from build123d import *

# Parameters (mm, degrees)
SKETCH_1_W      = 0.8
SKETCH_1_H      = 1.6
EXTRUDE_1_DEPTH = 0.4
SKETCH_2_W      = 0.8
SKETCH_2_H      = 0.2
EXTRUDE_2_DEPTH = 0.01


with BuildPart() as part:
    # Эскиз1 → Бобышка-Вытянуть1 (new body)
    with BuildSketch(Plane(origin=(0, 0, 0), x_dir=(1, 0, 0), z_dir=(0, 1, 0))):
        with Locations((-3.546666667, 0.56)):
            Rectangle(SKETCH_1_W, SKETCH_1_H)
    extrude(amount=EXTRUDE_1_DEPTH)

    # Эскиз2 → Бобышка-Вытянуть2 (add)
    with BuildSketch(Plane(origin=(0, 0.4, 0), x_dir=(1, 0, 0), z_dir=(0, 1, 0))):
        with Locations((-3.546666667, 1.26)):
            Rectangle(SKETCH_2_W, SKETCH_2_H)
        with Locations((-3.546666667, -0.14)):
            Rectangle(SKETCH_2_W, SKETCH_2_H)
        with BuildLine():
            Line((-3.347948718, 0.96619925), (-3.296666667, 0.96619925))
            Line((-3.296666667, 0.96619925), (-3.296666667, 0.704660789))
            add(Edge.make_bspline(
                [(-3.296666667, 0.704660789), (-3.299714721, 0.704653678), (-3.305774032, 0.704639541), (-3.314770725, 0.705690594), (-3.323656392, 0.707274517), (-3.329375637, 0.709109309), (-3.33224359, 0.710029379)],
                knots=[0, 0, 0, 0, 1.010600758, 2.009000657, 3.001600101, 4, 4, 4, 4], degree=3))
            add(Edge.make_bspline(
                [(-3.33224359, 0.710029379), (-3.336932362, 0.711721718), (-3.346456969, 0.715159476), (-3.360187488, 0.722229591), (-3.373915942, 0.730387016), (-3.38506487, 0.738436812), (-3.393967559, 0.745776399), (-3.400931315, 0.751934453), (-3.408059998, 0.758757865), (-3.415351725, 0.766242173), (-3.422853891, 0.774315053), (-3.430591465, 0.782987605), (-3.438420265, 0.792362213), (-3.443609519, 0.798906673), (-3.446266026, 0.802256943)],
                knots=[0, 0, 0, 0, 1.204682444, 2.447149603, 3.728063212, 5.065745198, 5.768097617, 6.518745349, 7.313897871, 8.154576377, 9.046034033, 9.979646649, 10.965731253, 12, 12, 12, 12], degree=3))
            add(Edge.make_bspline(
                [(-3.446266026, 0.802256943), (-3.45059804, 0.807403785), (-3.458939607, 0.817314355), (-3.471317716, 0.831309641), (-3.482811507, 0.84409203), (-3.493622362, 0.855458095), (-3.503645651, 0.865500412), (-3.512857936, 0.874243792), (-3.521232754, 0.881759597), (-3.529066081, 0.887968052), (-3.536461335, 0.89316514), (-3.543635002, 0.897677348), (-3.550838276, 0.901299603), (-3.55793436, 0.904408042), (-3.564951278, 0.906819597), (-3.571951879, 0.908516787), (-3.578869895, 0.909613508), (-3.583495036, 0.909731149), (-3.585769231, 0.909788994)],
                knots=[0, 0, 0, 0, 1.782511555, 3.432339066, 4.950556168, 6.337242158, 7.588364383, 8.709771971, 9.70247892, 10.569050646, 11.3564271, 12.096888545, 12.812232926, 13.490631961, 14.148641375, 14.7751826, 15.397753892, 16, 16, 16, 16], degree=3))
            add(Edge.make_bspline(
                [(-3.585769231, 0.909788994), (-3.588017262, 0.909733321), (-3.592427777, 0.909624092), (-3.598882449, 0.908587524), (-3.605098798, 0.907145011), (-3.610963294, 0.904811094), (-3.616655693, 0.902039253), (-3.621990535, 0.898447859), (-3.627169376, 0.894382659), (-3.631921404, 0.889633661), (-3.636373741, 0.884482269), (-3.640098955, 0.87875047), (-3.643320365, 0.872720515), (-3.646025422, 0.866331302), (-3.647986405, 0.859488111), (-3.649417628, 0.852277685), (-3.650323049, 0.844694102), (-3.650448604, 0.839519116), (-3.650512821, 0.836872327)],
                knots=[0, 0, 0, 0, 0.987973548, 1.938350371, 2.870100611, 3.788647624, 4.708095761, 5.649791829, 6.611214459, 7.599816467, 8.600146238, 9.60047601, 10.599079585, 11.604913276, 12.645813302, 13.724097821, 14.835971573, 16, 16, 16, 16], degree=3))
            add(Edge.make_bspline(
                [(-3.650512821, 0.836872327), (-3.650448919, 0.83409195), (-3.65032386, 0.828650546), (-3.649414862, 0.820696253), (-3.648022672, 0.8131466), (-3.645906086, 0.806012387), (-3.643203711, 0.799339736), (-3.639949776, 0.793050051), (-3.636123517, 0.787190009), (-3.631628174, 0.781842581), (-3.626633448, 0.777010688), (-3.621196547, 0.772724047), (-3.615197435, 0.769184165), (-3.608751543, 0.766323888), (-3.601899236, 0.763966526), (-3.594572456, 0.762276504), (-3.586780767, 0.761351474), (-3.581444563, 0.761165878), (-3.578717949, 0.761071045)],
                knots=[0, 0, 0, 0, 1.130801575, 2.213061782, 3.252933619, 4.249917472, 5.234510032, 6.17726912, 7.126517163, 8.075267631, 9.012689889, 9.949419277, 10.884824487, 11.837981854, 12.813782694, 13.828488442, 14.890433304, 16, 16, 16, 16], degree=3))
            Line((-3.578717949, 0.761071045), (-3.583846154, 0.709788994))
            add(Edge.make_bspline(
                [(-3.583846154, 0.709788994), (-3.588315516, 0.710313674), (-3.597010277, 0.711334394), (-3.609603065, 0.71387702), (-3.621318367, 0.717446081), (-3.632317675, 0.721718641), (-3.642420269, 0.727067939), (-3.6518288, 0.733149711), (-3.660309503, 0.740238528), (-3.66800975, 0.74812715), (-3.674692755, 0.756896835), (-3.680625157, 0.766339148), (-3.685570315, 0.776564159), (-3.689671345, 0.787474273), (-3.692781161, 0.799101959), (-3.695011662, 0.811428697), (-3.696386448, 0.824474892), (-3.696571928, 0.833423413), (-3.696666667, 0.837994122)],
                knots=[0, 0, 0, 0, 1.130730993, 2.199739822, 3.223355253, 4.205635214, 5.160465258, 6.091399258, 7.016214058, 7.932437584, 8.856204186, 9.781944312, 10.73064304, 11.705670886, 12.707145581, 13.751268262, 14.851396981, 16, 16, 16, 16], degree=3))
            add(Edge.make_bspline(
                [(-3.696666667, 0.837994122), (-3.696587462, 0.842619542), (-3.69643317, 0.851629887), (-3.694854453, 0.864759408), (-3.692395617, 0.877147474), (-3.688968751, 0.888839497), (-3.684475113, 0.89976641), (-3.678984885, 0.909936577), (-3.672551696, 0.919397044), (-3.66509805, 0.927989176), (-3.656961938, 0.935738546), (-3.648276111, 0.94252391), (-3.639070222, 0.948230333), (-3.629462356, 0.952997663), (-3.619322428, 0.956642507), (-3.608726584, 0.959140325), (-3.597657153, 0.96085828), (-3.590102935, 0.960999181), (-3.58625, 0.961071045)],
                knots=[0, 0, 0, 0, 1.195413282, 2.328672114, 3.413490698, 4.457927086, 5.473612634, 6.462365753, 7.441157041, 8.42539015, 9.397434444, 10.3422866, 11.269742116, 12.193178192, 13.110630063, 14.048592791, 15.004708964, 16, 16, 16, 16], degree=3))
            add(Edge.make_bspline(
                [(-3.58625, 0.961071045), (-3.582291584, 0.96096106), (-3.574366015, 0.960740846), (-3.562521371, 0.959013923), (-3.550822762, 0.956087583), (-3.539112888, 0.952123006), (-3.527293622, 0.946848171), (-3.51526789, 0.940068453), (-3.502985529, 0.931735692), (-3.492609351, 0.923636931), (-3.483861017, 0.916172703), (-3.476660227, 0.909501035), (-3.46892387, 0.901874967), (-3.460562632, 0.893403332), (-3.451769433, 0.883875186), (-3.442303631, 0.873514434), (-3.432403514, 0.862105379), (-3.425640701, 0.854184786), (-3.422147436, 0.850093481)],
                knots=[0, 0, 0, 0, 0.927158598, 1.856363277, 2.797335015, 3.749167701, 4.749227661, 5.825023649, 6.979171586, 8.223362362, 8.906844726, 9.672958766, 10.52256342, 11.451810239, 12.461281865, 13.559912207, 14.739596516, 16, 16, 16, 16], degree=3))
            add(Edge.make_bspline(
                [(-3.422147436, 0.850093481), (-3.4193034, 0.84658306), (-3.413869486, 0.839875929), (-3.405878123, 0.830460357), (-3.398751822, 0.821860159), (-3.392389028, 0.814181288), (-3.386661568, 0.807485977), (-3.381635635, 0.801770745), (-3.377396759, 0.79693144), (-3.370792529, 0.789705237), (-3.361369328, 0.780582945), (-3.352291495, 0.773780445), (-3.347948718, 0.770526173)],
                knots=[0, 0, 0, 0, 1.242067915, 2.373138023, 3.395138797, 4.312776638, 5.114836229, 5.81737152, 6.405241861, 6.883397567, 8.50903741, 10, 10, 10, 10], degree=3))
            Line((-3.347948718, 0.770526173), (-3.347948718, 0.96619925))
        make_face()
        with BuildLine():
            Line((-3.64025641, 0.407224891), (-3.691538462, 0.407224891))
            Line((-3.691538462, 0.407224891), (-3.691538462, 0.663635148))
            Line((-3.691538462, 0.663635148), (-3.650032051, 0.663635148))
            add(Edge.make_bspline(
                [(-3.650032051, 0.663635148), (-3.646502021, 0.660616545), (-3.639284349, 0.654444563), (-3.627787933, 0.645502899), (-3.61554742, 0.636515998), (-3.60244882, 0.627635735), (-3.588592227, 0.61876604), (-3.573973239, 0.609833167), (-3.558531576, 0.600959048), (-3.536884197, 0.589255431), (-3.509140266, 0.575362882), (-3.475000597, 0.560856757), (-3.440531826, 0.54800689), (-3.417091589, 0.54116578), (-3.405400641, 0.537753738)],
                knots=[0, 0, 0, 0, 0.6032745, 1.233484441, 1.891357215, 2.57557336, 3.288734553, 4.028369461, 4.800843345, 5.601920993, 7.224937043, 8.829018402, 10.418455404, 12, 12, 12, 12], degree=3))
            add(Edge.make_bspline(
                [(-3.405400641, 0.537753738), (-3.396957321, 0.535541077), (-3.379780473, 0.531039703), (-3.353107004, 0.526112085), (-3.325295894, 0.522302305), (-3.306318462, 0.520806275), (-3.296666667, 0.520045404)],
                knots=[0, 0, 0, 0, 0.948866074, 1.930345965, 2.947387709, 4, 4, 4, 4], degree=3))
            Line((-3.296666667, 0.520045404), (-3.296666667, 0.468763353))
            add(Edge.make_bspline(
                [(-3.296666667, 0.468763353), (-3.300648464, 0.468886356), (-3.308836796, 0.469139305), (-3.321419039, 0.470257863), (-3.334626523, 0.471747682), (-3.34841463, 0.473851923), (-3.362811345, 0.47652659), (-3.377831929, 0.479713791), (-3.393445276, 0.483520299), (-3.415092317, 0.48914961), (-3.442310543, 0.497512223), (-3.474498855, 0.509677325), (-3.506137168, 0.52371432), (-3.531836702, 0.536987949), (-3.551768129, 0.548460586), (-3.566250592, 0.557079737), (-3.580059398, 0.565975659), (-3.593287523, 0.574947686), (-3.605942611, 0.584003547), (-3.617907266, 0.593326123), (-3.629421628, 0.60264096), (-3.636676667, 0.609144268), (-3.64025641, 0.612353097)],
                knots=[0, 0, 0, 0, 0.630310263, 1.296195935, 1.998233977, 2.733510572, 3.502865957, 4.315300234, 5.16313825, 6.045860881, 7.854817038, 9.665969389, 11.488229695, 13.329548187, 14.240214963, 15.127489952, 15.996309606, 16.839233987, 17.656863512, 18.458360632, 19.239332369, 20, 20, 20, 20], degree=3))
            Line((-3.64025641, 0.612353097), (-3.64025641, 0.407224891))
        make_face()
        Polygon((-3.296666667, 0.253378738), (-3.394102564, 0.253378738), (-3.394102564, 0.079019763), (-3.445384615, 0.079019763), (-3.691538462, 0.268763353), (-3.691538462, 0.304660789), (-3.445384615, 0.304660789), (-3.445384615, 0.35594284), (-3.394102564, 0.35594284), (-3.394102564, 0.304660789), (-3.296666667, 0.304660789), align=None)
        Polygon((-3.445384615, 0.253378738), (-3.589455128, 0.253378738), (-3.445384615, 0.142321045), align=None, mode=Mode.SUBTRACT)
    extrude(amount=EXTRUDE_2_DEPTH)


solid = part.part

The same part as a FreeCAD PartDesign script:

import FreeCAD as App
import Part
import Sketcher
from FreeCAD import Vector
Q = App.Units.Quantity


def add_polygon(sketch, points):
    """Adds a closed chain of lines whose ends are joined by coincident constraints."""
    first, n = sketch.GeometryCount, len(points)
    for a, b in zip(points, points[1:] + points[:1]):
        sketch.addGeometry(Part.LineSegment(App.Vector(*a, 0), App.Vector(*b, 0)), False)
    for i in range(n):
        sketch.addConstraint(Sketcher.Constraint("Coincident", first + i, 2, first + (i + 1) % n, 1))

doc = App.newDocument("Part")
body = doc.addObject("PartDesign::Body", "Body")

sketch1 = body.newObject("Sketcher::SketchObject", "Sketch")
sketch1.AttachmentSupport = (doc.getObject("XZ_Plane"), [""])
sketch1.MapMode = "FlatFace"
add_polygon(sketch1, [(-3.946667, -1.36), (-3.946667, 0.24), (-3.146667, 0.24), (-3.146667, -1.36)])
sketch1.addConstraint([
    Sketcher.Constraint("Vertical", 0),
    Sketcher.Constraint("Horizontal", 1),
    Sketcher.Constraint("Vertical", 2),
    Sketcher.Constraint("Horizontal", 3),
    Sketcher.Constraint("DistanceX", 1, 1, 1, 2, Q("0.8 mm")),
    Sketcher.Constraint("DistanceY", 0, 1, 0, 2, Q("1.6 mm")),
    Sketcher.Constraint("DistanceY", -1, 1, 0, 2, Q("0.24 mm")),
    Sketcher.Constraint("DistanceX", 0, 2, -1, 1, Q("3.946667 mm")),
])
pad1 = body.newObject("PartDesign::Pad", "Pad")
pad1.Profile = sketch1
pad1.Length = 0.4
pad1.Reversed = True

sketch2 = body.newObject("Sketcher::SketchObject", "Sketch001")
sketch2.AttachmentSupport = (doc.getObject("XZ_Plane"), [""])
sketch2.MapMode = "FlatFace"
sketch2.AttachmentOffset = App.Placement(Vector(0, 0, -0.4), App.Rotation())
add_polygon(sketch2, [(-3.946667, -1.36), (-3.946667, -1.16), (-3.146667, -1.16), (-3.146667, -1.36)])
add_polygon(sketch2, [(-3.946667, 0.04), (-3.946667, 0.24), (-3.146667, 0.24), (-3.146667, 0.04)])
sketch2.addGeometry(Part.LineSegment(Vector(-3.296667, -0.966199, 0), Vector(-3.347949, -0.966199, 0)), False)
sketch2.addGeometry(Part.LineSegment(Vector(-3.347949, -0.966199, 0), Vector(-3.347949, -0.770526, 0)), False)
sketch2.addGeometry(Part.BSplineCurve([Vector(-3.422147, -0.850093, 0), Vector(-3.419303, -0.846583, 0), Vector(-3.413869, -0.839876, 0), Vector(-3.405878, -0.83046, 0), Vector(-3.398752, -0.82186, 0), Vector(-3.392389, -0.814181, 0), Vector(-3.386662, -0.807486, 0), Vector(-3.381636, -0.801771, 0), Vector(-3.377397, -0.796931, 0), Vector(-3.370793, -0.789705, 0), Vector(-3.361369, -0.780583, 0), Vector(-3.352291, -0.77378, 0), Vector(-3.347949, -0.770526, 0)], [4, 1, 1, 1, 1, 1, 1, 1, 1, 1, 4], [0, 1.242067915, 2.373138023, 3.395138797, 4.312776638, 5.114836229, 5.81737152, 6.405241861, 6.883397567, 8.50903741, 10], False, 3, [1, 1, 1, 1, 1, 1, 1, 1, 1, 1, 1, 1, 1], False), False)
sketch2.addGeometry(Part.BSplineCurve([Vector(-3.58625, -0.961071, 0), Vector(-3.582292, -0.960961, 0), Vector(-3.574366, -0.960741, 0), Vector(-3.562521, -0.959014, 0), Vector(-3.550823, -0.956088, 0), Vector(-3.539113, -0.952123, 0), Vector(-3.527294, -0.946848, 0), Vector(-3.515268, -0.940068, 0), Vector(-3.502986, -0.931736, 0), Vector(-3.492609, -0.923637, 0), Vector(-3.483861, -0.916173, 0), Vector(-3.47666, -0.909501, 0), Vector(-3.468924, -0.901875, 0), Vector(-3.460563, -0.893403, 0), Vector(-3.451769, -0.883875, 0), Vector(-3.442304, -0.873514, 0), Vector(-3.432404, -0.862105, 0), Vector(-3.425641, -0.854185, 0), Vector(-3.422147, -0.850093, 0)], [4, 1, 1, 1, 1, 1, 1, 1, 1, 1, 1, 1, 1, 1, 1, 1, 4], [0, 0.927158598, 1.856363277, 2.797335015, 3.749167701, 4.749227661, 5.825023649, 6.979171586, 8.223362362, 8.906844726, 9.672958766, 10.52256342, 11.451810239, 12.461281865, 13.559912207, 14.739596516, 16], False, 3, [1, 1, 1, 1, 1, 1, 1, 1, 1, 1, 1, 1, 1, 1, 1, 1, 1, 1, 1], False), False)
sketch2.addGeometry(Part.BSplineCurve([Vector(-3.696667, -0.837994, 0), Vector(-3.696587, -0.84262, 0), Vector(-3.696433, -0.85163, 0), Vector(-3.694854, -0.864759, 0), Vector(-3.692396, -0.877147, 0), Vector(-3.688969, -0.888839, 0), Vector(-3.684475, -0.899766, 0), Vector(-3.678985, -0.909937, 0), Vector(-3.672552, -0.919397, 0), Vector(-3.665098, -0.927989, 0), Vector(-3.656962, -0.935739, 0), Vector(-3.648276, -0.942524, 0), Vector(-3.63907, -0.94823, 0), Vector(-3.629462, -0.952998, 0), Vector(-3.619322, -0.956643, 0), Vector(-3.608727, -0.95914, 0), Vector(-3.597657, -0.960858, 0), Vector(-3.590103, -0.960999, 0), Vector(-3.58625, -0.961071, 0)], [4, 1, 1, 1, 1, 1, 1, 1, 1, 1, 1, 1, 1, 1, 1, 1, 4], [0, 1.195413282, 2.328672114, 3.413490698, 4.457927086, 5.473612634, 6.462365753, 7.441157041, 8.42539015, 9.397434444, 10.3422866, 11.269742116, 12.193178192, 13.110630063, 14.048592791, 15.004708964, 16], False, 3, [1, 1, 1, 1, 1, 1, 1, 1, 1, 1, 1, 1, 1, 1, 1, 1, 1, 1, 1], False), False)
sketch2.addGeometry(Part.BSplineCurve([Vector(-3.583846, -0.709789, 0), Vector(-3.588316, -0.710314, 0), Vector(-3.59701, -0.711334, 0), Vector(-3.609603, -0.713877, 0), Vector(-3.621318, -0.717446, 0), Vector(-3.632318, -0.721719, 0), Vector(-3.64242, -0.727068, 0), Vector(-3.651829, -0.73315, 0), Vector(-3.66031, -0.740239, 0), Vector(-3.66801, -0.748127, 0), Vector(-3.674693, -0.756897, 0), Vector(-3.680625, -0.766339, 0), Vector(-3.68557, -0.776564, 0), Vector(-3.689671, -0.787474, 0), Vector(-3.692781, -0.799102, 0), Vector(-3.695012, -0.811429, 0), Vector(-3.696386, -0.824475, 0), Vector(-3.696572, -0.833423, 0), Vector(-3.696667, -0.837994, 0)], [4, 1, 1, 1, 1, 1, 1, 1, 1, 1, 1, 1, 1, 1, 1, 1, 4], [0, 1.130730993, 2.199739822, 3.223355253, 4.205635214, 5.160465258, 6.091399258, 7.016214058, 7.932437584, 8.856204186, 9.781944312, 10.73064304, 11.705670886, 12.707145581, 13.751268262, 14.851396981, 16], False, 3, [1, 1, 1, 1, 1, 1, 1, 1, 1, 1, 1, 1, 1, 1, 1, 1, 1, 1, 1], False), False)
sketch2.addGeometry(Part.LineSegment(Vector(-3.583846, -0.709789, 0), Vector(-3.578718, -0.761071, 0)), False)
sketch2.addGeometry(Part.BSplineCurve([Vector(-3.650513, -0.836872, 0), Vector(-3.650449, -0.834092, 0), Vector(-3.650324, -0.828651, 0), Vector(-3.649415, -0.820696, 0), Vector(-3.648023, -0.813147, 0), Vector(-3.645906, -0.806012, 0), Vector(-3.643204, -0.79934, 0), Vector(-3.63995, -0.79305, 0), Vector(-3.636124, -0.78719, 0), Vector(-3.631628, -0.781843, 0), Vector(-3.626633, -0.777011, 0), Vector(-3.621197, -0.772724, 0), Vector(-3.615197, -0.769184, 0), Vector(-3.608752, -0.766324, 0), Vector(-3.601899, -0.763967, 0), Vector(-3.594572, -0.762277, 0), Vector(-3.586781, -0.761351, 0), Vector(-3.581445, -0.761166, 0), Vector(-3.578718, -0.761071, 0)], [4, 1, 1, 1, 1, 1, 1, 1, 1, 1, 1, 1, 1, 1, 1, 1, 4], [0, 1.130801575, 2.213061782, 3.252933619, 4.249917472, 5.234510032, 6.17726912, 7.126517163, 8.075267631, 9.012689889, 9.949419277, 10.884824487, 11.837981854, 12.813782694, 13.828488442, 14.890433304, 16], False, 3, [1, 1, 1, 1, 1, 1, 1, 1, 1, 1, 1, 1, 1, 1, 1, 1, 1, 1, 1], False), False)
sketch2.addGeometry(Part.BSplineCurve([Vector(-3.585769, -0.909789, 0), Vector(-3.588017, -0.909733, 0), Vector(-3.592428, -0.909624, 0), Vector(-3.598882, -0.908588, 0), Vector(-3.605099, -0.907145, 0), Vector(-3.610963, -0.904811, 0), Vector(-3.616656, -0.902039, 0), Vector(-3.621991, -0.898448, 0), Vector(-3.627169, -0.894383, 0), Vector(-3.631921, -0.889634, 0), Vector(-3.636374, -0.884482, 0), Vector(-3.640099, -0.87875, 0), Vector(-3.64332, -0.872721, 0), Vector(-3.646025, -0.866331, 0), Vector(-3.647986, -0.859488, 0), Vector(-3.649418, -0.852278, 0), Vector(-3.650323, -0.844694, 0), Vector(-3.650449, -0.839519, 0), Vector(-3.650513, -0.836872, 0)], [4, 1, 1, 1, 1, 1, 1, 1, 1, 1, 1, 1, 1, 1, 1, 1, 4], [0, 0.987973548, 1.938350371, 2.870100611, 3.788647624, 4.708095761, 5.649791829, 6.611214459, 7.599816467, 8.600146238, 9.60047601, 10.599079585, 11.604913276, 12.645813302, 13.724097821, 14.835971573, 16], False, 3, [1, 1, 1, 1, 1, 1, 1, 1, 1, 1, 1, 1, 1, 1, 1, 1, 1, 1, 1], False), False)
sketch2.addGeometry(Part.BSplineCurve([Vector(-3.446266, -0.802257, 0), Vector(-3.450598, -0.807404, 0), Vector(-3.45894, -0.817314, 0), Vector(-3.471318, -0.83131, 0), Vector(-3.482812, -0.844092, 0), Vector(-3.493622, -0.855458, 0), Vector(-3.503646, -0.8655, 0), Vector(-3.512858, -0.874244, 0), Vector(-3.521233, -0.88176, 0), Vector(-3.529066, -0.887968, 0), Vector(-3.536461, -0.893165, 0), Vector(-3.543635, -0.897677, 0), Vector(-3.550838, -0.9013, 0), Vector(-3.557934, -0.904408, 0), Vector(-3.564951, -0.90682, 0), Vector(-3.571952, -0.908517, 0), Vector(-3.57887, -0.909614, 0), Vector(-3.583495, -0.909731, 0), Vector(-3.585769, -0.909789, 0)], [4, 1, 1, 1, 1, 1, 1, 1, 1, 1, 1, 1, 1, 1, 1, 1, 4], [0, 1.782511555, 3.432339066, 4.950556168, 6.337242158, 7.588364383, 8.709771971, 9.70247892, 10.569050646, 11.3564271, 12.096888545, 12.812232926, 13.490631961, 14.148641375, 14.7751826, 15.397753892, 16], False, 3, [1, 1, 1, 1, 1, 1, 1, 1, 1, 1, 1, 1, 1, 1, 1, 1, 1, 1, 1], False), False)
sketch2.addGeometry(Part.BSplineCurve([Vector(-3.332244, -0.710029, 0), Vector(-3.336932, -0.711722, 0), Vector(-3.346457, -0.715159, 0), Vector(-3.360187, -0.72223, 0), Vector(-3.373916, -0.730387, 0), Vector(-3.385065, -0.738437, 0), Vector(-3.393968, -0.745776, 0), Vector(-3.400931, -0.751934, 0), Vector(-3.40806, -0.758758, 0), Vector(-3.415352, -0.766242, 0), Vector(-3.422854, -0.774315, 0), Vector(-3.430591, -0.782988, 0), Vector(-3.43842, -0.792362, 0), Vector(-3.44361, -0.798907, 0), Vector(-3.446266, -0.802257, 0)], [4, 1, 1, 1, 1, 1, 1, 1, 1, 1, 1, 1, 4], [0, 1.204682444, 2.447149603, 3.728063212, 5.065745198, 5.768097617, 6.518745349, 7.313897871, 8.154576377, 9.046034033, 9.979646649, 10.965731253, 12], False, 3, [1, 1, 1, 1, 1, 1, 1, 1, 1, 1, 1, 1, 1, 1, 1], False), False)
sketch2.addGeometry(Part.BSplineCurve([Vector(-3.296667, -0.704661, 0), Vector(-3.299715, -0.704654, 0), Vector(-3.305774, -0.70464, 0), Vector(-3.314771, -0.705691, 0), Vector(-3.323656, -0.707275, 0), Vector(-3.329376, -0.709109, 0), Vector(-3.332244, -0.710029, 0)], [4, 1, 1, 1, 4], [0, 1.010600758, 2.009000657, 3.001600101, 4], False, 3, [1, 1, 1, 1, 1, 1, 1], False), False)
sketch2.addGeometry(Part.LineSegment(Vector(-3.296667, -0.704661, 0), Vector(-3.296667, -0.966199, 0)), False)
sketch2.addGeometry(Part.LineSegment(Vector(-3.691538, -0.407225, 0), Vector(-3.640256, -0.407225, 0)), False)
sketch2.addGeometry(Part.LineSegment(Vector(-3.640256, -0.407225, 0), Vector(-3.640256, -0.612353, 0)), False)
sketch2.addGeometry(Part.BSplineCurve([Vector(-3.296667, -0.468763, 0), Vector(-3.300648, -0.468886, 0), Vector(-3.308837, -0.469139, 0), Vector(-3.321419, -0.470258, 0), Vector(-3.334627, -0.471748, 0), Vector(-3.348415, -0.473852, 0), Vector(-3.362811, -0.476527, 0), Vector(-3.377832, -0.479714, 0), Vector(-3.393445, -0.48352, 0), Vector(-3.415092, -0.48915, 0), Vector(-3.442311, -0.497512, 0), Vector(-3.474499, -0.509677, 0), Vector(-3.506137, -0.523714, 0), Vector(-3.531837, -0.536988, 0), Vector(-3.551768, -0.548461, 0), Vector(-3.566251, -0.55708, 0), Vector(-3.580059, -0.565976, 0), Vector(-3.593288, -0.574948, 0), Vector(-3.605943, -0.584004, 0), Vector(-3.617907, -0.593326, 0), Vector(-3.629422, -0.602641, 0), Vector(-3.636677, -0.609144, 0), Vector(-3.640256, -0.612353, 0)], [4, 1, 1, 1, 1, 1, 1, 1, 1, 1, 1, 1, 1, 1, 1, 1, 1, 1, 1, 1, 4], [0, 0.630310263, 1.296195935, 1.998233977, 2.733510572, 3.502865957, 4.315300234, 5.16313825, 6.045860881, 7.854817038, 9.665969389, 11.488229695, 13.329548187, 14.240214963, 15.127489952, 15.996309606, 16.839233987, 17.656863512, 18.458360632, 19.239332369, 20], False, 3, [1, 1, 1, 1, 1, 1, 1, 1, 1, 1, 1, 1, 1, 1, 1, 1, 1, 1, 1, 1, 1, 1, 1], False), False)
sketch2.addGeometry(Part.LineSegment(Vector(-3.296667, -0.468763, 0), Vector(-3.296667, -0.520045, 0)), False)
sketch2.addGeometry(Part.BSplineCurve([Vector(-3.405401, -0.537754, 0), Vector(-3.396957, -0.535541, 0), Vector(-3.37978, -0.53104, 0), Vector(-3.353107, -0.526112, 0), Vector(-3.325296, -0.522302, 0), Vector(-3.306318, -0.520806, 0), Vector(-3.296667, -0.520045, 0)], [4, 1, 1, 1, 4], [0, 0.948866074, 1.930345965, 2.947387709, 4], False, 3, [1, 1, 1, 1, 1, 1, 1], False), False)
sketch2.addGeometry(Part.BSplineCurve([Vector(-3.650032, -0.663635, 0), Vector(-3.646502, -0.660617, 0), Vector(-3.639284, -0.654445, 0), Vector(-3.627788, -0.645503, 0), Vector(-3.615547, -0.636516, 0), Vector(-3.602449, -0.627636, 0), Vector(-3.588592, -0.618766, 0), Vector(-3.573973, -0.609833, 0), Vector(-3.558532, -0.600959, 0), Vector(-3.536884, -0.589255, 0), Vector(-3.50914, -0.575363, 0), Vector(-3.475001, -0.560857, 0), Vector(-3.440532, -0.548007, 0), Vector(-3.417092, -0.541166, 0), Vector(-3.405401, -0.537754, 0)], [4, 1, 1, 1, 1, 1, 1, 1, 1, 1, 1, 1, 4], [0, 0.6032745, 1.233484441, 1.891357215, 2.57557336, 3.288734553, 4.028369461, 4.800843345, 5.601920993, 7.224937043, 8.829018402, 10.418455404, 12], False, 3, [1, 1, 1, 1, 1, 1, 1, 1, 1, 1, 1, 1, 1, 1, 1], False), False)
sketch2.addGeometry(Part.LineSegment(Vector(-3.650032, -0.663635, 0), Vector(-3.691538, -0.663635, 0)), False)
sketch2.addGeometry(Part.LineSegment(Vector(-3.691538, -0.663635, 0), Vector(-3.691538, -0.407225, 0)), False)
add_polygon(sketch2, [(-3.394103, -0.253379), (-3.296667, -0.253379), (-3.296667, -0.304661), (-3.394103, -0.304661), (-3.394103, -0.355943), (-3.445385, -0.355943), (-3.445385, -0.304661), (-3.691538, -0.304661), (-3.691538, -0.268763), (-3.445385, -0.07902), (-3.394103, -0.07902)])
add_polygon(sketch2, [(-3.445385, -0.253379), (-3.445385, -0.142321), (-3.589455, -0.253379)])
sketch2.addConstraint([
    Sketcher.Constraint("Block", 10),
    Sketcher.Constraint("Block", 11),
    Sketcher.Constraint("Block", 12),
    Sketcher.Constraint("Block", 13),
    Sketcher.Constraint("Block", 15),
    Sketcher.Constraint("Block", 16),
    Sketcher.Constraint("Block", 17),
    Sketcher.Constraint("Block", 18),
    Sketcher.Constraint("Block", 19),
    Sketcher.Constraint("Block", 23),
    Sketcher.Constraint("Block", 25),
    Sketcher.Constraint("Block", 26),
    Sketcher.Constraint("Coincident", 8, 2, 9, 1),
    Sketcher.Constraint("Coincident", 9, 2, 10, 2),
    Sketcher.Constraint("Coincident", 13, 1, 14, 1),
    Sketcher.Constraint("Coincident", 14, 2, 15, 2),
    Sketcher.Constraint("Coincident", 19, 1, 20, 1),
    Sketcher.Constraint("Coincident", 20, 2, 8, 1),
    Sketcher.Constraint("Coincident", 21, 2, 22, 1),
    Sketcher.Constraint("Coincident", 22, 2, 23, 2),
    Sketcher.Constraint("Coincident", 23, 1, 24, 1),
    Sketcher.Constraint("Coincident", 24, 2, 25, 2),
    Sketcher.Constraint("Coincident", 26, 1, 27, 1),
    Sketcher.Constraint("Coincident", 27, 2, 28, 1),
    Sketcher.Constraint("Coincident", 28, 2, 21, 1),
    Sketcher.Constraint("Vertical", 0),
    Sketcher.Constraint("Horizontal", 1),
    Sketcher.Constraint("Vertical", 2),
    Sketcher.Constraint("Horizontal", 3),
    Sketcher.Constraint("Vertical", 4),
    Sketcher.Constraint("Horizontal", 5),
    Sketcher.Constraint("Vertical", 6),
    Sketcher.Constraint("Horizontal", 7),
    Sketcher.Constraint("Horizontal", 8),
    Sketcher.Constraint("Vertical", 9),
    Sketcher.Constraint("Vertical", 20),
    Sketcher.Constraint("Horizontal", 21),
    Sketcher.Constraint("Vertical", 22),
    Sketcher.Constraint("Horizontal", 27),
    Sketcher.Constraint("Vertical", 28),
    Sketcher.Constraint("Horizontal", 29),
    Sketcher.Constraint("Vertical", 30),
    Sketcher.Constraint("Horizontal", 31),
    Sketcher.Constraint("Vertical", 32),
    Sketcher.Constraint("Horizontal", 33),
    Sketcher.Constraint("Vertical", 34),
    Sketcher.Constraint("Horizontal", 35),
    Sketcher.Constraint("Vertical", 36),
    Sketcher.Constraint("Horizontal", 38),
    Sketcher.Constraint("Vertical", 39),
    Sketcher.Constraint("Vertical", 40),
    Sketcher.Constraint("Horizontal", 42),
    Sketcher.Constraint("DistanceX", 1, 1, 1, 2, Q("0.8 mm")),
    Sketcher.Constraint("DistanceX", 5, 1, 5, 2, Q("0.8 mm")),
    Sketcher.Constraint("DistanceY", 0, 1, 0, 2, Q("0.2 mm")),
    Sketcher.Constraint("DistanceY", 4, 1, 4, 2, Q("0.2 mm")),
    Sketcher.Constraint("DistanceY", 0, 2, 4, 2, Q("1.4 mm")),
    Sketcher.Constraint("DistanceX", 4, 2, 1, 2, Q("0.8 mm")),
    Sketcher.Constraint("DistanceY", 0, 2, -1, 1, Q("1.16 mm")),
    Sketcher.Constraint("DistanceX", 20, 2, 1, 2, Q("0.15 mm")),
    Sketcher.Constraint("DistanceX", 29, 2, 6, 2, Q("0.15 mm")),
    Sketcher.Constraint("DistanceX", 42, 1, 42, 2, Q("0.144071 mm")),
    Sketcher.Constraint("DistanceY", 20, 2, 20, 1, Q("0.261538 mm")),
    Sketcher.Constraint("DistanceY", 22, 2, 22, 1, Q("0.205128 mm")),
    Sketcher.Constraint("DistanceY", 39, 2, 39, 1, Q("0.174359 mm")),
    Sketcher.Constraint("DistanceY", 40, 2, 37, 2, Q("0.063301 mm")),
    Sketcher.Constraint("DistanceX", 21, 2, 41, 2, Q("0.050801 mm")),
    Sketcher.Constraint("DistanceX", 21, 1, 21, 2, Q("0.051282 mm")),
    Sketcher.Constraint("DistanceX", 29, 1, 29, 2, Q("0.097436 mm")),
    Sketcher.Constraint("DistanceX", 31, 2, 31, 1, Q("0.097436 mm")),
    Sketcher.Constraint("DistanceX", 33, 2, 33, 1, Q("0.051282 mm")),
    Sketcher.Constraint("DistanceX", 35, 2, 35, 1, Q("0.246154 mm")),
    Sketcher.Constraint("DistanceX", 38, 1, 38, 2, Q("0.051282 mm")),
    Sketcher.Constraint("DistanceY", 30, 2, 30, 1, Q("0.051282 mm")),
    Sketcher.Constraint("DistanceY", 32, 2, 32, 1, Q("0.051282 mm")),
    Sketcher.Constraint("DistanceY", 34, 1, 34, 2, Q("0.051282 mm")),
    Sketcher.Constraint("DistanceY", 36, 1, 36, 2, Q("0.035897 mm")),
    Sketcher.Constraint("DistanceY", 40, 1, 40, 2, Q("0.111058 mm")),
    Sketcher.Constraint("DistanceY", 29, 2, -1, 1, Q("0.253379 mm")),
])
pad2 = body.newObject("PartDesign::Pad", "Pad001")
pad2.Profile = sketch2
pad2.Length = 0.01
pad2.Reversed = True

doc.recompute()
